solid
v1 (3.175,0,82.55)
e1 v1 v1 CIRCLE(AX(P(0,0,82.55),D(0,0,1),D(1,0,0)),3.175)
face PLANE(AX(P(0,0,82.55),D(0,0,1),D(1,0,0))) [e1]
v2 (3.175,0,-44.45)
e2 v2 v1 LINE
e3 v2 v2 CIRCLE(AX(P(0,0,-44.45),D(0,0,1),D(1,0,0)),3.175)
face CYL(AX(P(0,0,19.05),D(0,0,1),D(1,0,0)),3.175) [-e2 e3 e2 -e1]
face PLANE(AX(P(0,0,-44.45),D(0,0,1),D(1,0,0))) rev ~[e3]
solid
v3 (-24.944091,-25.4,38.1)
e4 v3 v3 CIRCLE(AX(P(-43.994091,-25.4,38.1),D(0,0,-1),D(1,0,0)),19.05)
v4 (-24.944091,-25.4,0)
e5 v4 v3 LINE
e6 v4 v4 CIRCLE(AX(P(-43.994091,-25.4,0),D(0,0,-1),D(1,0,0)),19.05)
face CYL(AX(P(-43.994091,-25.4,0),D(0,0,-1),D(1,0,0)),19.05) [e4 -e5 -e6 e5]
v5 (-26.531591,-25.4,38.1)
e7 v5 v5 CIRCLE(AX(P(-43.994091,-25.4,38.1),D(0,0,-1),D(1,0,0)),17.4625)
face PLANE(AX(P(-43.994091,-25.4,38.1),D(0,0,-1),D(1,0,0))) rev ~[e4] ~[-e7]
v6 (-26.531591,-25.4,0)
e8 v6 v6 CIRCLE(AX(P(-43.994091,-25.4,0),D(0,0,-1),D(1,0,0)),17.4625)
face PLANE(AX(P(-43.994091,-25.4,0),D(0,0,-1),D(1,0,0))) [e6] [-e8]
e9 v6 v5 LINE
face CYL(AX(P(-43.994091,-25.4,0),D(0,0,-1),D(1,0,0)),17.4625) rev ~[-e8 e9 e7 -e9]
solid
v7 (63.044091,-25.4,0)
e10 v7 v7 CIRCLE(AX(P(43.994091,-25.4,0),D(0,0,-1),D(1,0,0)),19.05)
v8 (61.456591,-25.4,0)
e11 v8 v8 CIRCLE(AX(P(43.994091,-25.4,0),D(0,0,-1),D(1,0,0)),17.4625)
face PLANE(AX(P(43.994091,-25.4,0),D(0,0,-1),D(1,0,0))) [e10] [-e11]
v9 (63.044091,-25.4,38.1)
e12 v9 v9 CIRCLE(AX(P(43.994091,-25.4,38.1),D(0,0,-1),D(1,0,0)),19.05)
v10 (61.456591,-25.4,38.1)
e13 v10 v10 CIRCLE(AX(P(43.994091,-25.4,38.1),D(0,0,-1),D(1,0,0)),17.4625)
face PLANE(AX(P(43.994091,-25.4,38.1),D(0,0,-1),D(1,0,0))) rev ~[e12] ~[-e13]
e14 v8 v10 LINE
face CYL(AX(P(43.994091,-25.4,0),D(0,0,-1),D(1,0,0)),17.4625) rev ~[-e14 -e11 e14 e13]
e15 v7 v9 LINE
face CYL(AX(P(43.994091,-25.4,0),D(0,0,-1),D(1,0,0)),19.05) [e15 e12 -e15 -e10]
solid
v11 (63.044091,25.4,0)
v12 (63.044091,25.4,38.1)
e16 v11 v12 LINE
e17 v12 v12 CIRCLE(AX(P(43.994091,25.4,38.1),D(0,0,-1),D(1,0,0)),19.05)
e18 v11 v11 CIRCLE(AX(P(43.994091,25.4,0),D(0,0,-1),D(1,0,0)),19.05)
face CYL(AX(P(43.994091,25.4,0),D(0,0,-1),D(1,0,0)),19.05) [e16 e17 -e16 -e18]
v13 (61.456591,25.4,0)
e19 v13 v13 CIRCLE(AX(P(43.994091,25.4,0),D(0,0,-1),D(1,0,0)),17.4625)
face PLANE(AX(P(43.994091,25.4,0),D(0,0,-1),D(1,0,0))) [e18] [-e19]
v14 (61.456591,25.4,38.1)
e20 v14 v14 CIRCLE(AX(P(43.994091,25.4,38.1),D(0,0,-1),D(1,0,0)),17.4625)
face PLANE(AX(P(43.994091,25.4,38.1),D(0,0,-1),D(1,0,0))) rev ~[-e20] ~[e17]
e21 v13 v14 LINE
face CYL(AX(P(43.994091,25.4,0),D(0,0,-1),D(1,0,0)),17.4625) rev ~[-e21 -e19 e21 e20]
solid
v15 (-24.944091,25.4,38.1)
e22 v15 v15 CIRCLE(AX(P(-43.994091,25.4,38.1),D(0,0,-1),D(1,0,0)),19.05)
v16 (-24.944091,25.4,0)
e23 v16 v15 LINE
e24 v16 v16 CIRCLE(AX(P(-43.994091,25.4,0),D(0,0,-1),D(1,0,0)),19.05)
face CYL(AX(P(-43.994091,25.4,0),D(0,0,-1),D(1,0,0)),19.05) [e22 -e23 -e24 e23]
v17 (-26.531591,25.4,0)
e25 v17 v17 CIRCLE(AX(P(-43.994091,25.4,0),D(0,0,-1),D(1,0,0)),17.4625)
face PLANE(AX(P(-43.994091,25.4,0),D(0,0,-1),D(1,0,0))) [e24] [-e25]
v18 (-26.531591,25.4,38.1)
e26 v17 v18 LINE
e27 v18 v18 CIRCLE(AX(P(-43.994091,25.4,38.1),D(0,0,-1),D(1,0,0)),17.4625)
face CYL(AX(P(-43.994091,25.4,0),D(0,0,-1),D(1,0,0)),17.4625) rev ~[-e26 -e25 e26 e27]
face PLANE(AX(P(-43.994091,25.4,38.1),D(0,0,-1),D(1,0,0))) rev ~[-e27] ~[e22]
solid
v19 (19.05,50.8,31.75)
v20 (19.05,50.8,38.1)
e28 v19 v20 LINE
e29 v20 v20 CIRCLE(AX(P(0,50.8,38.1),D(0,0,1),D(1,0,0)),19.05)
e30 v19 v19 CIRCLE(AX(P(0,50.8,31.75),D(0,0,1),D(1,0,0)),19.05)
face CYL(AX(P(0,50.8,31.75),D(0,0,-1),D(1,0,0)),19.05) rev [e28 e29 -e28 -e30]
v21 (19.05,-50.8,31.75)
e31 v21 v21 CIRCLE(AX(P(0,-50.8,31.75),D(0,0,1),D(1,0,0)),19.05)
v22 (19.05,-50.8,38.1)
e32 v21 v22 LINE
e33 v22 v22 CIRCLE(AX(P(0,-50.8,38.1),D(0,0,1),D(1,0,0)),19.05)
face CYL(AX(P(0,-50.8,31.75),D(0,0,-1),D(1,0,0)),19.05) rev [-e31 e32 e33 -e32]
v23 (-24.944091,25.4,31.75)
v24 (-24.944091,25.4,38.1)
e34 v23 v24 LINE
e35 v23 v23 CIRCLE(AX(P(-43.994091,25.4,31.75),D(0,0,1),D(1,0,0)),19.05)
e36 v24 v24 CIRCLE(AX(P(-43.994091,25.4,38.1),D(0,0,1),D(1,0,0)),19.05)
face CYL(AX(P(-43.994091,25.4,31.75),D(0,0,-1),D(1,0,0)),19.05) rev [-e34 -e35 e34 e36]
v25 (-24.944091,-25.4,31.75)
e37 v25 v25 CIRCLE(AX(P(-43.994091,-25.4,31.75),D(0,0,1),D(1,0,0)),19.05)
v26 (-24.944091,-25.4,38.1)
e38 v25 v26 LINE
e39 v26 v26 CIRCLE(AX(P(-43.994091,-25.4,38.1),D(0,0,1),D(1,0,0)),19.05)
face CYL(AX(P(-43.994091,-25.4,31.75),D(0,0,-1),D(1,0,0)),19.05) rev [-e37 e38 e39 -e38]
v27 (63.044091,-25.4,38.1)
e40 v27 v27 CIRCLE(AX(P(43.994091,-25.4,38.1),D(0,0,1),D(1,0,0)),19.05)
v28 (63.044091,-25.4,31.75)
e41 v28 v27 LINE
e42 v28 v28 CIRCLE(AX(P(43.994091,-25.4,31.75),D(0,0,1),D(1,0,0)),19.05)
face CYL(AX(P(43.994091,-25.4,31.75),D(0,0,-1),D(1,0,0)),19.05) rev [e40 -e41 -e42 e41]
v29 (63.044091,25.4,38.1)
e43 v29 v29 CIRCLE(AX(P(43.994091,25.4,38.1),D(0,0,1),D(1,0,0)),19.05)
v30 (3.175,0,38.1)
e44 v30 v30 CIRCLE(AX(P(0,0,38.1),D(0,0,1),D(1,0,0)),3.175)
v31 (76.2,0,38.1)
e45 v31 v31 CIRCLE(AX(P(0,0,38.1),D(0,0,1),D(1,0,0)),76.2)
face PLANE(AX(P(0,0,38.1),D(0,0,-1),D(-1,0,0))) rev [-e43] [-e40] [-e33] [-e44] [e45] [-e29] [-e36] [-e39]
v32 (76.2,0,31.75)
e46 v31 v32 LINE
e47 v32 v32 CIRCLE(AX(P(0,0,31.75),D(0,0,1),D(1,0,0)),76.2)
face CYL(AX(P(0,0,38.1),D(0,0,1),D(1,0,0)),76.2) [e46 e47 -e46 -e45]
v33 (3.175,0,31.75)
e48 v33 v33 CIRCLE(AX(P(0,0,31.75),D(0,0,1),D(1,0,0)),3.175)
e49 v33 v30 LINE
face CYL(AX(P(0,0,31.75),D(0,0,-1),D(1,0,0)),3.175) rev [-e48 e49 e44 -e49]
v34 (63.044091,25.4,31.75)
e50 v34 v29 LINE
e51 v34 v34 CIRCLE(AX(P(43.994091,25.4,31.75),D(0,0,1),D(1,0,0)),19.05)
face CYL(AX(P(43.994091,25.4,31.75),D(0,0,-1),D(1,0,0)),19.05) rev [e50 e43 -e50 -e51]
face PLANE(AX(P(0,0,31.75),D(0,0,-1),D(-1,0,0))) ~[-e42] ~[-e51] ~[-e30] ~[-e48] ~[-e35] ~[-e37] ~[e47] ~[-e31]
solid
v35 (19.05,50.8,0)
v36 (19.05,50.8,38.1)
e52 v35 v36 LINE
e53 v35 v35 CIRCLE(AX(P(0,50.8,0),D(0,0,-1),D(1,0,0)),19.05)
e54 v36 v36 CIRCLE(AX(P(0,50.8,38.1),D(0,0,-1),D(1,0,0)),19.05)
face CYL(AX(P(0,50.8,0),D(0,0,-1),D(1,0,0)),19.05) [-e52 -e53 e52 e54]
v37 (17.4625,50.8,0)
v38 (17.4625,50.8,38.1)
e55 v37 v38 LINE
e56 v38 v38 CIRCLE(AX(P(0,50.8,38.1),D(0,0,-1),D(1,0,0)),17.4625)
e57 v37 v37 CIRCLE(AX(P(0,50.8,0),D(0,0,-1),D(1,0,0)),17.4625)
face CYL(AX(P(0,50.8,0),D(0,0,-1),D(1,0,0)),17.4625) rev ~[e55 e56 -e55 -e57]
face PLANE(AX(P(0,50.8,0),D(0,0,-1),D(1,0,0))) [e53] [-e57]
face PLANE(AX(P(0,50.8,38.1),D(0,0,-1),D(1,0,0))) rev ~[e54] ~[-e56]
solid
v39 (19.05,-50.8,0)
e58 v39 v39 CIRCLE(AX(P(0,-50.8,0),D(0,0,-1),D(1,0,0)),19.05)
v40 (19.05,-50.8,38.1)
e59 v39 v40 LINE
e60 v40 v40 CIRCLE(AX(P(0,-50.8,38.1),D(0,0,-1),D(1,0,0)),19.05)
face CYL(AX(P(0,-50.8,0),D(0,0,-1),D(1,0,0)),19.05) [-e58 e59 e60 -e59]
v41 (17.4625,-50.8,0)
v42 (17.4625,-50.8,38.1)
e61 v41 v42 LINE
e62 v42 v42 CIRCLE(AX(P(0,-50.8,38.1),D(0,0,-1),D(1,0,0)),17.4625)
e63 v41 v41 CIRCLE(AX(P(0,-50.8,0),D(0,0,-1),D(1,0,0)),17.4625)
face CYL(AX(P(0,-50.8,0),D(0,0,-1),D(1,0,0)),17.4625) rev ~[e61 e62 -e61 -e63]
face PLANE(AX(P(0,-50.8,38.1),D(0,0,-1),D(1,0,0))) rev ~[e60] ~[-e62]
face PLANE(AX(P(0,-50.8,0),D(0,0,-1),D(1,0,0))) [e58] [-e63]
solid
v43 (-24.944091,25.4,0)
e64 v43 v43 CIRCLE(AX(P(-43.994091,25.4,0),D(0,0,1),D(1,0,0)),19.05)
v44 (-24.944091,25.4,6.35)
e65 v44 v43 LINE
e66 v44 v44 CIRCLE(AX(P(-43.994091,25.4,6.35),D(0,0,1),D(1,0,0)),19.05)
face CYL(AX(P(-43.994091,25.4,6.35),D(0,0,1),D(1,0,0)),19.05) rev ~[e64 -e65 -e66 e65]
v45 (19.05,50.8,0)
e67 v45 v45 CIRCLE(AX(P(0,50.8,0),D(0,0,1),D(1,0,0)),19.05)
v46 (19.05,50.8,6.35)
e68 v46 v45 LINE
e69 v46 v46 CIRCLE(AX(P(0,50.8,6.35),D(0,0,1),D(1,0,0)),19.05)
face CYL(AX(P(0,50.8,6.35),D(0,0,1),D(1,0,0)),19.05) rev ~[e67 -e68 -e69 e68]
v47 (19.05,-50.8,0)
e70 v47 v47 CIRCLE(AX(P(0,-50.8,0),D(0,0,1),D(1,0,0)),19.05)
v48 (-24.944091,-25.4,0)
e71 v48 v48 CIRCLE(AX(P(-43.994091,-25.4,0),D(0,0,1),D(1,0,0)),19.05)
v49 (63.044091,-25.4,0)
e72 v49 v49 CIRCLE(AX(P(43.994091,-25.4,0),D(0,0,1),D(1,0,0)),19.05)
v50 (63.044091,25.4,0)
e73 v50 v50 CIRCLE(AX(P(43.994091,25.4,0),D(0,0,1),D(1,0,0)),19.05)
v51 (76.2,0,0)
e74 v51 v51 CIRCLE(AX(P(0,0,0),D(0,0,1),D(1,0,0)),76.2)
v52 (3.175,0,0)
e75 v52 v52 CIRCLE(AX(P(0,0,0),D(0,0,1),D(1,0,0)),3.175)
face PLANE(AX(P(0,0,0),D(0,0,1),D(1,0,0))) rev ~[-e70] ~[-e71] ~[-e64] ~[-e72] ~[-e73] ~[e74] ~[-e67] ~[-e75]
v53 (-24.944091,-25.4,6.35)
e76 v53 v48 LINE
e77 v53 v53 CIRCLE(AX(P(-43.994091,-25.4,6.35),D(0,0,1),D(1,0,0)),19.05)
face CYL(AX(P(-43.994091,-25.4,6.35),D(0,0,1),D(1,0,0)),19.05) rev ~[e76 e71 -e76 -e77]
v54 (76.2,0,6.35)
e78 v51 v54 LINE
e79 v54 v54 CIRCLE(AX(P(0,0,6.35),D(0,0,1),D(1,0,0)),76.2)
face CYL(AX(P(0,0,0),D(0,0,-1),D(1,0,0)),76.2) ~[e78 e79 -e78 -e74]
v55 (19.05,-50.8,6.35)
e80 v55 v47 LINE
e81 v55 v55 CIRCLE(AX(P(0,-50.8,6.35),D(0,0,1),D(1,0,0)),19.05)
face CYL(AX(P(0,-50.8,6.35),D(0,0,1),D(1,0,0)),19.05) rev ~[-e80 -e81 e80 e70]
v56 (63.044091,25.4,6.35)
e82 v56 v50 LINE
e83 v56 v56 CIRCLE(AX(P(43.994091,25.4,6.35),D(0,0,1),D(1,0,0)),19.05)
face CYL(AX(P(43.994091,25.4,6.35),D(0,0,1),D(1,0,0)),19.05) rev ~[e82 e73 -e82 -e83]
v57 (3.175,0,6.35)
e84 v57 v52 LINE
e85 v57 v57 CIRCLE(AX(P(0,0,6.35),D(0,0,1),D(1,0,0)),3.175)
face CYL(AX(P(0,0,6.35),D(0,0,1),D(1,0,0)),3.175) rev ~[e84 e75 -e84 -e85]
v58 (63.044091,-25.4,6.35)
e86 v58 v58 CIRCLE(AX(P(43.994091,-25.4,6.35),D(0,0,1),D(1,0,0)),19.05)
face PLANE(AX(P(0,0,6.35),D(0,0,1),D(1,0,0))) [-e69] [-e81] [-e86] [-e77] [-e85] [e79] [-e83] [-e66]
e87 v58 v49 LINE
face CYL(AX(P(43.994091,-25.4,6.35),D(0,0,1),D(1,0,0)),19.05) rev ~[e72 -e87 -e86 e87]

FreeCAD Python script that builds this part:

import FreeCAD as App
import Part
import Sketcher

V = App.Vector
Q = App.Units.Quantity

doc = App.newDocument("Part")
body = doc.addObject("PartDesign::Body", "Body")

sketch1 = body.newObject("Sketcher::SketchObject", "Sketch")
sketch1.AttachmentSupport = (doc.getObject("XY_Plane"), [""])
sketch1.MapMode = "FlatFace"
sketch1.addGeometry(Part.Circle(V(0, 0, 0), V(0, 0, 1), 76), False)
sketch1.addConstraint([
    Sketcher.Constraint("Coincident", 0, 3, -1, 1),
    Sketcher.Constraint("Diameter", 0, Q("6 in")),
])
pad1 = body.newObject("PartDesign::Pad", "Pad")
pad1.Profile = sketch1
pad1.Length = Q("0.25 in")

sketch2 = body.newObject("Sketcher::SketchObject", "Sketch001")
sketch2.AttachmentSupport = (doc.getObject("XY_Plane"), [""])
sketch2.MapMode = "FlatFace"
sketch2.AttachmentOffset = App.Placement(V(0, 0, 0.25 * 25.4), App.Rotation())
sketch2.addGeometry([
    Part.Circle(V(0, 50.8, 0), V(0, 0, 1), 19.1),
    Part.Circle(V(-44, 25.4, 0), V(0, 0, 1), 19.1),
    Part.Circle(V(-44, -25.4, 0), V(0, 0, 1), 19.1),
    Part.Circle(V(0, -50.8, 0), V(0, 0, 1), 19.1),
    Part.Circle(V(44, -25.4, 0), V(0, 0, 1), 19.1),
    Part.Circle(V(44, 25.4, 0), V(0, 0, 1), 19.1),
    Part.Circle(V(0, 0, 0), V(0, 0, 1), 3.2),
], False)
sketch2.addConstraint([
    Sketcher.Constraint("Coincident", 6, 3, -1, 1),
    Sketcher.Constraint("Equal", 0, 1),
    Sketcher.Constraint("Equal", 1, 2),
    Sketcher.Constraint("Equal", 2, 3),
    Sketcher.Constraint("Equal", 3, 4),
    Sketcher.Constraint("Equal", 4, 5),
    Sketcher.Constraint("Symmetric", 0, 3, 3, 3, -1, 1),
    Sketcher.Constraint("Symmetric", 1, 3, 4, 3, -1, 1),
    Sketcher.Constraint("Symmetric", 2, 3, 5, 3, -1, 1),
    Sketcher.Constraint("Symmetric", 2, 3, 4, 3, -2),
    Sketcher.Constraint("PointOnObject", 0, 3, -2),
    Sketcher.Constraint("Diameter", 0, Q("1.5 in")),
    Sketcher.Constraint("Diameter", 6, Q("0.25 in")),
    Sketcher.Constraint("DistanceY", -1, 1, 0, 3, Q("2 in")),
    Sketcher.Constraint("DistanceY", -1, 1, 1, 3, Q("1 in")),
    Sketcher.Constraint("DistanceX", 1, 3, -1, 1, 43.994091),
])
pocket1 = body.newObject("PartDesign::Pocket", "Pocket")
pocket1.Profile = sketch2
pocket1.Type = "ThroughAll"
body2 = doc.addObject("PartDesign::Body", "Body001")

sketch3 = body2.newObject("Sketcher::SketchObject", "Sketch002")
sketch3.AttachmentSupport = (doc.getObject("XY_Plane001"), [""])
sketch3.MapMode = "FlatFace"
sketch3.addGeometry([
    Part.Circle(V(0, 51, 0), V(0, 0, 1), 19),
    Part.Circle(V(0, 51, 0), V(0, 0, 1), 17),
], False)
sketch3.addConstraint([
    Sketcher.Constraint("Coincident", 1, 3, 0, 3),
    Sketcher.Constraint("PointOnObject", 0, 3, -2),
    Sketcher.Constraint("Diameter", 0, Q("1.5 in")),
    Sketcher.Constraint("Diameter", 1, Q("1.375 in")),
    Sketcher.Constraint("DistanceY", -1, 1, 0, 3, Q("2 in")),
])
pad2 = body2.newObject("PartDesign::Pad", "Pad001")
pad2.Profile = sketch3
pad2.Length = Q("1.5 in")
body3 = doc.addObject("PartDesign::Body", "Body002")

sketch4 = body3.newObject("Sketcher::SketchObject", "Sketch003")
sketch4.AttachmentSupport = (doc.getObject("XY_Plane002"), [""])
sketch4.MapMode = "FlatFace"
sketch4.addGeometry([
    Part.Circle(V(44, 25, 0), V(0, 0, 1), 19),
    Part.Circle(V(44, 25, 0), V(0, 0, 1), 17),
], False)
sketch4.addConstraint([
    Sketcher.Constraint("Coincident", 1, 3, 0, 3),
    Sketcher.Constraint("Diameter", 0, Q("1.5 in")),
    Sketcher.Constraint("Diameter", 1, Q("1.375 in")),
    Sketcher.Constraint("DistanceY", -1, 1, 0, 3, Q("1 in")),
    Sketcher.Constraint("DistanceX", -1, 1, 0, 3, 43.994091),
])
pad3 = body3.newObject("PartDesign::Pad", "Pad002")
pad3.Profile = sketch4
pad3.Length = Q("1.5 in")
body4 = doc.addObject("PartDesign::Body", "Body003")

sketch5 = body4.newObject("Sketcher::SketchObject", "Sketch004")
sketch5.AttachmentSupport = (doc.getObject("XY_Plane003"), [""])
sketch5.MapMode = "FlatFace"
sketch5.addGeometry([
    Part.Circle(V(44, -25, 0), V(0, 0, 1), 19),
    Part.Circle(V(44, -25, 0), V(0, 0, 1), 17),
], False)
sketch5.addConstraint([
    Sketcher.Constraint("Coincident", 1, 3, 0, 3),
    Sketcher.Constraint("Diameter", 0, Q("1.5 in")),
    Sketcher.Constraint("Diameter", 1, Q("1.375 in")),
    Sketcher.Constraint("DistanceY", 0, 3, -1, 1, Q("1 in")),
    Sketcher.Constraint("DistanceX", -1, 1, 0, 3, 43.994091),
])
pad4 = body4.newObject("PartDesign::Pad", "Pad003")
pad4.Profile = sketch5
pad4.Length = Q("1.5 in")
body5 = doc.addObject("PartDesign::Body", "Body004")

sketch6 = body5.newObject("Sketcher::SketchObject", "Sketch005")
sketch6.AttachmentSupport = (doc.getObject("XY_Plane004"), [""])
sketch6.MapMode = "FlatFace"
sketch6.addGeometry([
    Part.Circle(V(0, -51, 0), V(0, 0, 1), 19),
    Part.Circle(V(0, -51, 0), V(0, 0, 1), 17),
], False)
sketch6.addConstraint([
    Sketcher.Constraint("Coincident", 1, 3, 0, 3),
    Sketcher.Constraint("PointOnObject", 0, 3, -2),
    Sketcher.Constraint("Diameter", 0, Q("1.5 in")),
    Sketcher.Constraint("Diameter", 1, Q("1.375 in")),
    Sketcher.Constraint("DistanceY", 0, 3, -1, 1, Q("2 in")),
])
pad5 = body5.newObject("PartDesign::Pad", "Pad004")
pad5.Profile = sketch6
pad5.Length = Q("1.5 in")
body6 = doc.addObject("PartDesign::Body", "Body005")

sketch7 = body6.newObject("Sketcher::SketchObject", "Sketch006")
sketch7.AttachmentSupport = (doc.getObject("XY_Plane005"), [""])
sketch7.MapMode = "FlatFace"
sketch7.addGeometry([
    Part.Circle(V(-44, -25, 0), V(0, 0, 1), 19),
    Part.Circle(V(-44, -25, 0), V(0, 0, 1), 17),
], False)
sketch7.addConstraint([
    Sketcher.Constraint("Coincident", 1, 3, 0, 3),
    Sketcher.Constraint("Diameter", 0, Q("1.5 in")),
    Sketcher.Constraint("Diameter", 1, Q("1.375 in")),
    Sketcher.Constraint("DistanceY", 0, 3, -1, 1, Q("1 in")),
    Sketcher.Constraint("DistanceX", 0, 3, -1, 1, 43.994091),
])
pad6 = body6.newObject("PartDesign::Pad", "Pad005")
pad6.Profile = sketch7
pad6.Length = Q("1.5 in")
body7 = doc.addObject("PartDesign::Body", "Body006")

sketch8 = body7.newObject("Sketcher::SketchObject", "Sketch007")
sketch8.AttachmentSupport = (doc.getObject("XY_Plane006"), [""])
sketch8.MapMode = "FlatFace"
sketch8.addGeometry([
    Part.Circle(V(-44, 25, 0), V(0, 0, 1), 19),
    Part.Circle(V(-44, 25, 0), V(0, 0, 1), 17),
], False)
sketch8.addConstraint([
    Sketcher.Constraint("Coincident", 1, 3, 0, 3),
    Sketcher.Constraint("Diameter", 0, Q("1.5 in")),
    Sketcher.Constraint("Diameter", 1, Q("1.375 in")),
    Sketcher.Constraint("DistanceY", -1, 1, 0, 3, Q("1 in")),
    Sketcher.Constraint("DistanceX", 0, 3, -1, 1, 43.994091),
])
pad7 = body7.newObject("PartDesign::Pad", "Pad006")
pad7.Profile = sketch8
pad7.Length = Q("1.5 in")
body8 = doc.addObject("PartDesign::Body", "Body007")
doc.recompute()

mirroring = doc.addObject("Part::Mirroring", "Mirroring")
mirroring.Source = body
mirroring.Base = V(0, 0, 19.05)
mirroring.Normal = V(0, 0, 1)
body8.BaseFeature = mirroring
doc.recompute()
body9 = doc.addObject("PartDesign::Body", "Body008")

sketch9 = body9.newObject("Sketcher::SketchObject", "Sketch008")
sketch9.AttachmentSupport = (doc.getObject("XY_Plane008"), [""])
sketch9.MapMode = "FlatFace"
sketch9.AttachmentOffset = App.Placement(V(0, 0, 0.75 * 25.4), App.Rotation())
sketch9.addGeometry(Part.Circle(V(0, 0, 0), V(0, 0, 1), 3.2), False)
sketch9.addConstraint([
    Sketcher.Constraint("Coincident", 0, 3, -1, 1),
    Sketcher.Constraint("Diameter", 0, Q("0.25 in")),
])
pad8 = body9.newObject("PartDesign::Pad", "Pad007")
pad8.Profile = sketch9
pad8.Length = Q("5 in")
pad8.Midplane = True
mirroring.Visibility = False

doc.recompute()
